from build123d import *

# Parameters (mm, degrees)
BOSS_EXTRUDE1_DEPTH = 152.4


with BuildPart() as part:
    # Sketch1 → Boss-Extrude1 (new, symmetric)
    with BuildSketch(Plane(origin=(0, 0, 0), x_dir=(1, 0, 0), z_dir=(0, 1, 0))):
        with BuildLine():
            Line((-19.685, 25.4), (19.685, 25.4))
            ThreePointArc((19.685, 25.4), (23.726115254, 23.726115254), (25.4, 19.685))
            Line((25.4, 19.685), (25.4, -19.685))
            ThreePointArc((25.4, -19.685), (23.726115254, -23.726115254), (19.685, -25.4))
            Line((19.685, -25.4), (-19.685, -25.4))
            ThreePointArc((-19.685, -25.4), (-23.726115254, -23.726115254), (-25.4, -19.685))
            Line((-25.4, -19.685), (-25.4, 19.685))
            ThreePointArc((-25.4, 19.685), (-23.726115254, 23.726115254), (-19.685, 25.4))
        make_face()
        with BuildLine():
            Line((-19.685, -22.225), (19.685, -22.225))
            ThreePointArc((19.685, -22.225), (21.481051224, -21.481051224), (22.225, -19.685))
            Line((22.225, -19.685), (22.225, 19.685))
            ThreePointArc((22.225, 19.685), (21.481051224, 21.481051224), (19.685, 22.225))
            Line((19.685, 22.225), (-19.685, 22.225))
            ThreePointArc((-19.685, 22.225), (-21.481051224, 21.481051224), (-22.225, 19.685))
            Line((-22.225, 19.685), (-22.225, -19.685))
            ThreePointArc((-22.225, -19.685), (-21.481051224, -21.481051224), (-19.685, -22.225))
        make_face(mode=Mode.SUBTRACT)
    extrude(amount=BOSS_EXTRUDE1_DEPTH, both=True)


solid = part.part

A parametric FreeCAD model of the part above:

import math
import FreeCAD as App
import Part
import Sketcher
from FreeCAD import Vector
Q = App.Units.Quantity

doc = App.newDocument("Part")
body = doc.addObject("PartDesign::Body", "Body")

sketch1 = doc.addObject("Sketcher::SketchObject", "Sketch")
body.addObject(sketch1)
sketch1.AttachmentSupport = (doc.XZ_Plane, [""])
sketch1.MapMode = "FlatFace"
sketch1.addGeometry(Part.LineSegment(Vector(19.7, -25.4, 0), Vector(-19.7, -25.4, 0)), False)
sketch1.addGeometry(Part.ArcOfCircle(Part.Circle(Vector(-19.7, -19.7, 0), Vector(0, 0, 1), 5.7), math.radians(-180), math.radians(-90)), False)
sketch1.addGeometry(Part.LineSegment(Vector(-25.4, -19.7, 0), Vector(-25.4, 19.7, 0)), False)
sketch1.addGeometry(Part.ArcOfCircle(Part.Circle(Vector(-19.7, 19.7, 0), Vector(0, 0, 1), 5.7), math.radians(90), math.radians(180)), False)
sketch1.addGeometry(Part.LineSegment(Vector(-19.7, 25.4, 0), Vector(19.7, 25.4, 0)), False)
sketch1.addGeometry(Part.ArcOfCircle(Part.Circle(Vector(19.7, 19.7, 0), Vector(0, 0, 1), 5.7), math.radians(0), math.radians(90)), False)
sketch1.addGeometry(Part.LineSegment(Vector(25.4, 19.7, 0), Vector(25.4, -19.7, 0)), False)
sketch1.addGeometry(Part.ArcOfCircle(Part.Circle(Vector(19.7, -19.7, 0), Vector(0, 0, 1), 5.7), math.radians(-90), math.radians(0)), False)
sketch1.addGeometry(Part.ArcOfCircle(Part.Circle(Vector(-19.7, 19.7, 0), Vector(0, 0, 1), 2.5), math.radians(90), math.radians(180)), False)
sketch1.addGeometry(Part.LineSegment(Vector(-22.2, 19.7, 0), Vector(-22.2, -19.7, 0)), False)
sketch1.addGeometry(Part.ArcOfCircle(Part.Circle(Vector(-19.7, -19.7, 0), Vector(0, 0, 1), 2.5), math.radians(-180), math.radians(-90)), False)
sketch1.addGeometry(Part.LineSegment(Vector(-19.7, -22.2, 0), Vector(19.7, -22.2, 0)), False)
sketch1.addGeometry(Part.ArcOfCircle(Part.Circle(Vector(19.7, -19.7, 0), Vector(0, 0, 1), 2.5), math.radians(-90), math.radians(0)), False)
sketch1.addGeometry(Part.LineSegment(Vector(22.2, -19.7, 0), Vector(22.2, 19.7, 0)), False)
sketch1.addGeometry(Part.ArcOfCircle(Part.Circle(Vector(19.7, 19.7, 0), Vector(0, 0, 1), 2.5), math.radians(0), math.radians(90)), False)
sketch1.addGeometry(Part.LineSegment(Vector(19.7, 22.2, 0), Vector(-19.7, 22.2, 0)), False)
sketch1.addConstraint(Sketcher.Constraint("Tangent", 0, 2, 1, 2))
sketch1.addConstraint(Sketcher.Constraint("Tangent", 1, 1, 2, 1))
sketch1.addConstraint(Sketcher.Constraint("Tangent", 2, 2, 3, 2))
sketch1.addConstraint(Sketcher.Constraint("Tangent", 3, 1, 4, 1))
sketch1.addConstraint(Sketcher.Constraint("Tangent", 4, 2, 5, 2))
sketch1.addConstraint(Sketcher.Constraint("Tangent", 5, 1, 6, 1))
sketch1.addConstraint(Sketcher.Constraint("Tangent", 6, 2, 7, 2))
sketch1.addConstraint(Sketcher.Constraint("Tangent", 7, 1, 0, 1))
sketch1.addConstraint(Sketcher.Constraint("Tangent", 8, 2, 9, 1))
sketch1.addConstraint(Sketcher.Constraint("Tangent", 9, 2, 10, 1))
sketch1.addConstraint(Sketcher.Constraint("Tangent", 10, 2, 11, 1))
sketch1.addConstraint(Sketcher.Constraint("Tangent", 11, 2, 12, 1))
sketch1.addConstraint(Sketcher.Constraint("Tangent", 12, 2, 13, 1))
sketch1.addConstraint(Sketcher.Constraint("Tangent", 13, 2, 14, 1))
sketch1.addConstraint(Sketcher.Constraint("Tangent", 14, 2, 15, 1))
sketch1.addConstraint(Sketcher.Constraint("Tangent", 15, 2, 8, 1))
sketch1.addConstraint(Sketcher.Constraint("Horizontal", 0))
sketch1.addConstraint(Sketcher.Constraint("Vertical", 2))
sketch1.addConstraint(Sketcher.Constraint("Horizontal", 4))
sketch1.addConstraint(Sketcher.Constraint("Vertical", 6))
sketch1.addConstraint(Sketcher.Constraint("Vertical", 9))
sketch1.addConstraint(Sketcher.Constraint("Horizontal", 11))
sketch1.addConstraint(Sketcher.Constraint("Vertical", 13))
sketch1.addConstraint(Sketcher.Constraint("Horizontal", 15))
sketch1.addConstraint(Sketcher.Constraint("Coincident", 8, 3, 3, 3))
sketch1.addConstraint(Sketcher.Constraint("Coincident", 10, 3, 1, 3))
sketch1.addConstraint(Sketcher.Constraint("Coincident", 12, 3, 7, 3))
sketch1.addConstraint(Sketcher.Constraint("Equal", 1, 3))
sketch1.addConstraint(Sketcher.Constraint("Equal", 3, 5))
sketch1.addConstraint(Sketcher.Constraint("Equal", 5, 7))
sketch1.addConstraint(Sketcher.Constraint("Equal", 12, 14))
sketch1.addConstraint(Sketcher.Constraint("Symmetric", 1, 3, 5, 3, -1, 1))
sketch1.addConstraint(Sketcher.Constraint("Equal", 15, 2))
sketch1.addConstraint(Sketcher.Constraint("Radius", 8, Q("0.1 in")))
sketch1.addConstraint(Sketcher.Constraint("DistanceY", 0, 2, -1, 1, Q("1 in")))
sketch1.addConstraint(Sketcher.Constraint("Radius", 1, Q("0.225 in")))
pad1 = doc.addObject("PartDesign::Pad", "Pad")
body.addObject(pad1)
pad1.Profile = sketch1
pad1.Length = Q("12 in")
pad1.Midplane = True

doc.recompute()
